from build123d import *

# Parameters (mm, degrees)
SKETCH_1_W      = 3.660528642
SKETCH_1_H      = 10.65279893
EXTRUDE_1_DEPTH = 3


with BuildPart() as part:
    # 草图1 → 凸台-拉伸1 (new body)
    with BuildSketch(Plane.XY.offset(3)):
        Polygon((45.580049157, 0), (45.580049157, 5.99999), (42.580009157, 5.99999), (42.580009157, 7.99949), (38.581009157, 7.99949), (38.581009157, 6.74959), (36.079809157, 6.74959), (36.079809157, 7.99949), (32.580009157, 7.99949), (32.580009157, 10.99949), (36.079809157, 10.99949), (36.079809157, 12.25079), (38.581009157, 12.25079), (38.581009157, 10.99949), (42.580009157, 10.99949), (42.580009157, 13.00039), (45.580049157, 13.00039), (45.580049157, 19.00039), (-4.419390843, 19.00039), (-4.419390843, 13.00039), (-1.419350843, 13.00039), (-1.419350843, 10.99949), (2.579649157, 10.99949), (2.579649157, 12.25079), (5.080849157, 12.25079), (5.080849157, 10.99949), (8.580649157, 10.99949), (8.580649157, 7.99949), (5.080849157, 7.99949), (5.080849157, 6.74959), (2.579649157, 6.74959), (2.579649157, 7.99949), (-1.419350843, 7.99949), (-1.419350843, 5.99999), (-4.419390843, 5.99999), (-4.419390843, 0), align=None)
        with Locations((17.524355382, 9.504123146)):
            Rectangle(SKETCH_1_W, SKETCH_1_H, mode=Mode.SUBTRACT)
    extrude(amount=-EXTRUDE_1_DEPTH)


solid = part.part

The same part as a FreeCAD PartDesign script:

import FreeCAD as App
import Part
import Sketcher
from FreeCAD import Vector


def add_polygon(sketch, points):
    """Adds a closed chain of lines whose ends are joined by coincident constraints."""
    first, n = sketch.GeometryCount, len(points)
    for a, b in zip(points, points[1:] + points[:1]):
        sketch.addGeometry(Part.LineSegment(App.Vector(*a, 0), App.Vector(*b, 0)), False)
    for i in range(n):
        sketch.addConstraint(Sketcher.Constraint("Coincident", first + i, 2, first + (i + 1) % n, 1))

doc = App.newDocument("Part")
body = doc.addObject("PartDesign::Body", "Body")

# Sketch on XY plane
sketch1 = body.newObject("Sketcher::SketchObject", "Sketch")
sketch1.AttachmentSupport = (doc.getObject("XY_Plane"), [""])
sketch1.MapMode = "FlatFace"
sketch1.AttachmentOffset = App.Placement(Vector(0, 0, 3), App.Rotation())
add_polygon(sketch1, [(45.6, 0), (45.6, 6), (42.6, 6), (42.6, 8), (38.6, 8), (38.6, 6.7), (36.1, 6.7), (36.1, 8), (32.6, 8), (32.6, 11), (36.1, 11), (36.1, 12.3), (38.6, 12.3), (38.6, 11), (42.6, 11), (42.6, 13), (45.6, 13), (45.6, 19), (-4.4, 19), (-4.4, 13), (-1.4, 13), (-1.4, 11), (2.6, 11), (2.6, 12.3), (5.1, 12.3), (5.1, 11), (8.6, 11), (8.6, 8), (5.1, 8), (5.1, 6.7), (2.6, 6.7), (2.6, 8), (-1.4, 8), (-1.4, 6), (-4.4, 6), (-4.4, 0)])  # lines 0-35
add_polygon(sketch1, [(19.4, 4.2), (15.7, 4.2), (15.7, 14.8), (19.4, 14.8)])  # lines 36-39
sketch1.addConstraint(Sketcher.Constraint("Vertical", 0))
sketch1.addConstraint(Sketcher.Constraint("Horizontal", 1))
sketch1.addConstraint(Sketcher.Constraint("Vertical", 2))
sketch1.addConstraint(Sketcher.Constraint("Horizontal", 3))
sketch1.addConstraint(Sketcher.Constraint("Vertical", 4))
sketch1.addConstraint(Sketcher.Constraint("Horizontal", 5))
sketch1.addConstraint(Sketcher.Constraint("Vertical", 6))
sketch1.addConstraint(Sketcher.Constraint("Horizontal", 7))
sketch1.addConstraint(Sketcher.Constraint("Vertical", 8))
sketch1.addConstraint(Sketcher.Constraint("Horizontal", 9))
sketch1.addConstraint(Sketcher.Constraint("Vertical", 10))
sketch1.addConstraint(Sketcher.Constraint("Horizontal", 11))
sketch1.addConstraint(Sketcher.Constraint("Vertical", 12))
sketch1.addConstraint(Sketcher.Constraint("Horizontal", 13))
sketch1.addConstraint(Sketcher.Constraint("Vertical", 14))
sketch1.addConstraint(Sketcher.Constraint("Horizontal", 15))
sketch1.addConstraint(Sketcher.Constraint("Vertical", 16))
sketch1.addConstraint(Sketcher.Constraint("Horizontal", 17))
sketch1.addConstraint(Sketcher.Constraint("Vertical", 18))
sketch1.addConstraint(Sketcher.Constraint("Horizontal", 19))
sketch1.addConstraint(Sketcher.Constraint("Vertical", 20))
sketch1.addConstraint(Sketcher.Constraint("Horizontal", 21))
sketch1.addConstraint(Sketcher.Constraint("Vertical", 22))
sketch1.addConstraint(Sketcher.Constraint("Horizontal", 23))
sketch1.addConstraint(Sketcher.Constraint("Vertical", 24))
sketch1.addConstraint(Sketcher.Constraint("Horizontal", 25))
sketch1.addConstraint(Sketcher.Constraint("Vertical", 26))
sketch1.addConstraint(Sketcher.Constraint("Horizontal", 27))
sketch1.addConstraint(Sketcher.Constraint("Vertical", 28))
sketch1.addConstraint(Sketcher.Constraint("Horizontal", 29))
sketch1.addConstraint(Sketcher.Constraint("Vertical", 30))
sketch1.addConstraint(Sketcher.Constraint("Horizontal", 31))
sketch1.addConstraint(Sketcher.Constraint("Vertical", 32))
sketch1.addConstraint(Sketcher.Constraint("Horizontal", 33))
sketch1.addConstraint(Sketcher.Constraint("Vertical", 34))
sketch1.addConstraint(Sketcher.Constraint("Horizontal", 35))
sketch1.addConstraint(Sketcher.Constraint("Horizontal", 36))
sketch1.addConstraint(Sketcher.Constraint("Vertical", 37))
sketch1.addConstraint(Sketcher.Constraint("Horizontal", 38))
sketch1.addConstraint(Sketcher.Constraint("Vertical", 39))
sketch1.addConstraint(Sketcher.Constraint("PointOnObject", 34, 2, -1))
sketch1.addConstraint(Sketcher.Constraint("Horizontal", 3, 2, 6, 2))
sketch1.addConstraint(Sketcher.Constraint("Horizontal", 9, 2, 12, 2))
sketch1.addConstraint(Sketcher.Constraint("Horizontal", 15, 2, 18, 2))
sketch1.addConstraint(Sketcher.Constraint("Horizontal", 13, 2, 20, 2))
sketch1.addConstraint(Sketcher.Constraint("Horizontal", 11, 2, 22, 2))
sketch1.addConstraint(Sketcher.Constraint("Horizontal", 21, 2, 24, 2))
sketch1.addConstraint(Sketcher.Constraint("Horizontal", 7, 2, 26, 2))
sketch1.addConstraint(Sketcher.Constraint("Horizontal", 5, 2, 28, 2))
sketch1.addConstraint(Sketcher.Constraint("Horizontal", 27, 2, 30, 2))
sketch1.addConstraint(Sketcher.Constraint("Horizontal", 1, 2, 32, 2))
sketch1.addConstraint(Sketcher.Constraint("Vertical", 6, 2, 9, 2))
sketch1.addConstraint(Sketcher.Constraint("Vertical", 4, 2, 11, 2))
sketch1.addConstraint(Sketcher.Constraint("Vertical", 2, 2, 13, 2))
sketch1.addConstraint(Sketcher.Constraint("Vertical", 0, 2, 15, 2))
sketch1.addConstraint(Sketcher.Constraint("Vertical", 24, 2, 27, 2))
sketch1.addConstraint(Sketcher.Constraint("Vertical", 22, 2, 29, 2))
sketch1.addConstraint(Sketcher.Constraint("Vertical", 20, 2, 31, 2))
sketch1.addConstraint(Sketcher.Constraint("Vertical", 18, 2, 33, 2))
sketch1.addConstraint(Sketcher.Constraint("Equal", 15, 19))
sketch1.addConstraint(Sketcher.Constraint("Equal", 13, 21))
sketch1.addConstraint(Sketcher.Constraint("Equal", 11, 23))
sketch1.addConstraint(Sketcher.Constraint("Equal", 9, 25))
sketch1.addConstraint(Sketcher.Constraint("DistanceY", 8, 1, 8, 2, 3.0))
sketch1.addConstraint(Sketcher.Constraint("DistanceY", 16, 1, 16, 2, 6.0))
sketch1.addConstraint(Sketcher.Constraint("DistanceX", 7, 2, 2, 2, 10.0))
sketch1.addConstraint(Sketcher.Constraint("DistanceX", 3, 2, 3, 1, 3.999))
sketch1.addConstraint(Sketcher.Constraint("DistanceX", 5, 2, 5, 1, 2.5012))
sketch1.addConstraint(Sketcher.Constraint("DistanceY", 2, 1, 2, 2, 1.9995))
sketch1.addConstraint(Sketcher.Constraint("DistanceY", 4, 2, 4, 1, 1.2499))
sketch1.addConstraint(Sketcher.Constraint("DistanceY", 10, 1, 10, 2, 1.2513))
sketch1.addConstraint(Sketcher.Constraint("DistanceY", 14, 1, 14, 2, 2.0009))
sketch1.addConstraint(Sketcher.Constraint("DistanceY", 37, 1, 37, 2, 10.652799))
sketch1.addConstraint(Sketcher.Constraint("DistanceX", 1, 2, 1, 1, 3.00004))
sketch1.addConstraint(Sketcher.Constraint("DistanceX", 17, 2, 17, 1, 49.99944))
sketch1.addConstraint(Sketcher.Constraint("DistanceX", 36, 2, 36, 1, 3.660529))
sketch1.addConstraint(Sketcher.Constraint("DistanceY", 0, 1, 0, 2, 5.99999))
sketch1.addConstraint(Sketcher.Constraint("DistanceX", -1, 1, 0, 2, 45.580049))
sketch1.addConstraint(Sketcher.Constraint("DistanceX", -1, 1, 36, 2, 15.694091))
sketch1.addConstraint(Sketcher.Constraint("DistanceY", -1, 1, 36, 2, 4.177724))
pad1 = body.newObject("PartDesign::Pad", "Pad")
pad1.Profile = sketch1
pad1.Length = 3
pad1.Reversed = True

doc.recompute()
